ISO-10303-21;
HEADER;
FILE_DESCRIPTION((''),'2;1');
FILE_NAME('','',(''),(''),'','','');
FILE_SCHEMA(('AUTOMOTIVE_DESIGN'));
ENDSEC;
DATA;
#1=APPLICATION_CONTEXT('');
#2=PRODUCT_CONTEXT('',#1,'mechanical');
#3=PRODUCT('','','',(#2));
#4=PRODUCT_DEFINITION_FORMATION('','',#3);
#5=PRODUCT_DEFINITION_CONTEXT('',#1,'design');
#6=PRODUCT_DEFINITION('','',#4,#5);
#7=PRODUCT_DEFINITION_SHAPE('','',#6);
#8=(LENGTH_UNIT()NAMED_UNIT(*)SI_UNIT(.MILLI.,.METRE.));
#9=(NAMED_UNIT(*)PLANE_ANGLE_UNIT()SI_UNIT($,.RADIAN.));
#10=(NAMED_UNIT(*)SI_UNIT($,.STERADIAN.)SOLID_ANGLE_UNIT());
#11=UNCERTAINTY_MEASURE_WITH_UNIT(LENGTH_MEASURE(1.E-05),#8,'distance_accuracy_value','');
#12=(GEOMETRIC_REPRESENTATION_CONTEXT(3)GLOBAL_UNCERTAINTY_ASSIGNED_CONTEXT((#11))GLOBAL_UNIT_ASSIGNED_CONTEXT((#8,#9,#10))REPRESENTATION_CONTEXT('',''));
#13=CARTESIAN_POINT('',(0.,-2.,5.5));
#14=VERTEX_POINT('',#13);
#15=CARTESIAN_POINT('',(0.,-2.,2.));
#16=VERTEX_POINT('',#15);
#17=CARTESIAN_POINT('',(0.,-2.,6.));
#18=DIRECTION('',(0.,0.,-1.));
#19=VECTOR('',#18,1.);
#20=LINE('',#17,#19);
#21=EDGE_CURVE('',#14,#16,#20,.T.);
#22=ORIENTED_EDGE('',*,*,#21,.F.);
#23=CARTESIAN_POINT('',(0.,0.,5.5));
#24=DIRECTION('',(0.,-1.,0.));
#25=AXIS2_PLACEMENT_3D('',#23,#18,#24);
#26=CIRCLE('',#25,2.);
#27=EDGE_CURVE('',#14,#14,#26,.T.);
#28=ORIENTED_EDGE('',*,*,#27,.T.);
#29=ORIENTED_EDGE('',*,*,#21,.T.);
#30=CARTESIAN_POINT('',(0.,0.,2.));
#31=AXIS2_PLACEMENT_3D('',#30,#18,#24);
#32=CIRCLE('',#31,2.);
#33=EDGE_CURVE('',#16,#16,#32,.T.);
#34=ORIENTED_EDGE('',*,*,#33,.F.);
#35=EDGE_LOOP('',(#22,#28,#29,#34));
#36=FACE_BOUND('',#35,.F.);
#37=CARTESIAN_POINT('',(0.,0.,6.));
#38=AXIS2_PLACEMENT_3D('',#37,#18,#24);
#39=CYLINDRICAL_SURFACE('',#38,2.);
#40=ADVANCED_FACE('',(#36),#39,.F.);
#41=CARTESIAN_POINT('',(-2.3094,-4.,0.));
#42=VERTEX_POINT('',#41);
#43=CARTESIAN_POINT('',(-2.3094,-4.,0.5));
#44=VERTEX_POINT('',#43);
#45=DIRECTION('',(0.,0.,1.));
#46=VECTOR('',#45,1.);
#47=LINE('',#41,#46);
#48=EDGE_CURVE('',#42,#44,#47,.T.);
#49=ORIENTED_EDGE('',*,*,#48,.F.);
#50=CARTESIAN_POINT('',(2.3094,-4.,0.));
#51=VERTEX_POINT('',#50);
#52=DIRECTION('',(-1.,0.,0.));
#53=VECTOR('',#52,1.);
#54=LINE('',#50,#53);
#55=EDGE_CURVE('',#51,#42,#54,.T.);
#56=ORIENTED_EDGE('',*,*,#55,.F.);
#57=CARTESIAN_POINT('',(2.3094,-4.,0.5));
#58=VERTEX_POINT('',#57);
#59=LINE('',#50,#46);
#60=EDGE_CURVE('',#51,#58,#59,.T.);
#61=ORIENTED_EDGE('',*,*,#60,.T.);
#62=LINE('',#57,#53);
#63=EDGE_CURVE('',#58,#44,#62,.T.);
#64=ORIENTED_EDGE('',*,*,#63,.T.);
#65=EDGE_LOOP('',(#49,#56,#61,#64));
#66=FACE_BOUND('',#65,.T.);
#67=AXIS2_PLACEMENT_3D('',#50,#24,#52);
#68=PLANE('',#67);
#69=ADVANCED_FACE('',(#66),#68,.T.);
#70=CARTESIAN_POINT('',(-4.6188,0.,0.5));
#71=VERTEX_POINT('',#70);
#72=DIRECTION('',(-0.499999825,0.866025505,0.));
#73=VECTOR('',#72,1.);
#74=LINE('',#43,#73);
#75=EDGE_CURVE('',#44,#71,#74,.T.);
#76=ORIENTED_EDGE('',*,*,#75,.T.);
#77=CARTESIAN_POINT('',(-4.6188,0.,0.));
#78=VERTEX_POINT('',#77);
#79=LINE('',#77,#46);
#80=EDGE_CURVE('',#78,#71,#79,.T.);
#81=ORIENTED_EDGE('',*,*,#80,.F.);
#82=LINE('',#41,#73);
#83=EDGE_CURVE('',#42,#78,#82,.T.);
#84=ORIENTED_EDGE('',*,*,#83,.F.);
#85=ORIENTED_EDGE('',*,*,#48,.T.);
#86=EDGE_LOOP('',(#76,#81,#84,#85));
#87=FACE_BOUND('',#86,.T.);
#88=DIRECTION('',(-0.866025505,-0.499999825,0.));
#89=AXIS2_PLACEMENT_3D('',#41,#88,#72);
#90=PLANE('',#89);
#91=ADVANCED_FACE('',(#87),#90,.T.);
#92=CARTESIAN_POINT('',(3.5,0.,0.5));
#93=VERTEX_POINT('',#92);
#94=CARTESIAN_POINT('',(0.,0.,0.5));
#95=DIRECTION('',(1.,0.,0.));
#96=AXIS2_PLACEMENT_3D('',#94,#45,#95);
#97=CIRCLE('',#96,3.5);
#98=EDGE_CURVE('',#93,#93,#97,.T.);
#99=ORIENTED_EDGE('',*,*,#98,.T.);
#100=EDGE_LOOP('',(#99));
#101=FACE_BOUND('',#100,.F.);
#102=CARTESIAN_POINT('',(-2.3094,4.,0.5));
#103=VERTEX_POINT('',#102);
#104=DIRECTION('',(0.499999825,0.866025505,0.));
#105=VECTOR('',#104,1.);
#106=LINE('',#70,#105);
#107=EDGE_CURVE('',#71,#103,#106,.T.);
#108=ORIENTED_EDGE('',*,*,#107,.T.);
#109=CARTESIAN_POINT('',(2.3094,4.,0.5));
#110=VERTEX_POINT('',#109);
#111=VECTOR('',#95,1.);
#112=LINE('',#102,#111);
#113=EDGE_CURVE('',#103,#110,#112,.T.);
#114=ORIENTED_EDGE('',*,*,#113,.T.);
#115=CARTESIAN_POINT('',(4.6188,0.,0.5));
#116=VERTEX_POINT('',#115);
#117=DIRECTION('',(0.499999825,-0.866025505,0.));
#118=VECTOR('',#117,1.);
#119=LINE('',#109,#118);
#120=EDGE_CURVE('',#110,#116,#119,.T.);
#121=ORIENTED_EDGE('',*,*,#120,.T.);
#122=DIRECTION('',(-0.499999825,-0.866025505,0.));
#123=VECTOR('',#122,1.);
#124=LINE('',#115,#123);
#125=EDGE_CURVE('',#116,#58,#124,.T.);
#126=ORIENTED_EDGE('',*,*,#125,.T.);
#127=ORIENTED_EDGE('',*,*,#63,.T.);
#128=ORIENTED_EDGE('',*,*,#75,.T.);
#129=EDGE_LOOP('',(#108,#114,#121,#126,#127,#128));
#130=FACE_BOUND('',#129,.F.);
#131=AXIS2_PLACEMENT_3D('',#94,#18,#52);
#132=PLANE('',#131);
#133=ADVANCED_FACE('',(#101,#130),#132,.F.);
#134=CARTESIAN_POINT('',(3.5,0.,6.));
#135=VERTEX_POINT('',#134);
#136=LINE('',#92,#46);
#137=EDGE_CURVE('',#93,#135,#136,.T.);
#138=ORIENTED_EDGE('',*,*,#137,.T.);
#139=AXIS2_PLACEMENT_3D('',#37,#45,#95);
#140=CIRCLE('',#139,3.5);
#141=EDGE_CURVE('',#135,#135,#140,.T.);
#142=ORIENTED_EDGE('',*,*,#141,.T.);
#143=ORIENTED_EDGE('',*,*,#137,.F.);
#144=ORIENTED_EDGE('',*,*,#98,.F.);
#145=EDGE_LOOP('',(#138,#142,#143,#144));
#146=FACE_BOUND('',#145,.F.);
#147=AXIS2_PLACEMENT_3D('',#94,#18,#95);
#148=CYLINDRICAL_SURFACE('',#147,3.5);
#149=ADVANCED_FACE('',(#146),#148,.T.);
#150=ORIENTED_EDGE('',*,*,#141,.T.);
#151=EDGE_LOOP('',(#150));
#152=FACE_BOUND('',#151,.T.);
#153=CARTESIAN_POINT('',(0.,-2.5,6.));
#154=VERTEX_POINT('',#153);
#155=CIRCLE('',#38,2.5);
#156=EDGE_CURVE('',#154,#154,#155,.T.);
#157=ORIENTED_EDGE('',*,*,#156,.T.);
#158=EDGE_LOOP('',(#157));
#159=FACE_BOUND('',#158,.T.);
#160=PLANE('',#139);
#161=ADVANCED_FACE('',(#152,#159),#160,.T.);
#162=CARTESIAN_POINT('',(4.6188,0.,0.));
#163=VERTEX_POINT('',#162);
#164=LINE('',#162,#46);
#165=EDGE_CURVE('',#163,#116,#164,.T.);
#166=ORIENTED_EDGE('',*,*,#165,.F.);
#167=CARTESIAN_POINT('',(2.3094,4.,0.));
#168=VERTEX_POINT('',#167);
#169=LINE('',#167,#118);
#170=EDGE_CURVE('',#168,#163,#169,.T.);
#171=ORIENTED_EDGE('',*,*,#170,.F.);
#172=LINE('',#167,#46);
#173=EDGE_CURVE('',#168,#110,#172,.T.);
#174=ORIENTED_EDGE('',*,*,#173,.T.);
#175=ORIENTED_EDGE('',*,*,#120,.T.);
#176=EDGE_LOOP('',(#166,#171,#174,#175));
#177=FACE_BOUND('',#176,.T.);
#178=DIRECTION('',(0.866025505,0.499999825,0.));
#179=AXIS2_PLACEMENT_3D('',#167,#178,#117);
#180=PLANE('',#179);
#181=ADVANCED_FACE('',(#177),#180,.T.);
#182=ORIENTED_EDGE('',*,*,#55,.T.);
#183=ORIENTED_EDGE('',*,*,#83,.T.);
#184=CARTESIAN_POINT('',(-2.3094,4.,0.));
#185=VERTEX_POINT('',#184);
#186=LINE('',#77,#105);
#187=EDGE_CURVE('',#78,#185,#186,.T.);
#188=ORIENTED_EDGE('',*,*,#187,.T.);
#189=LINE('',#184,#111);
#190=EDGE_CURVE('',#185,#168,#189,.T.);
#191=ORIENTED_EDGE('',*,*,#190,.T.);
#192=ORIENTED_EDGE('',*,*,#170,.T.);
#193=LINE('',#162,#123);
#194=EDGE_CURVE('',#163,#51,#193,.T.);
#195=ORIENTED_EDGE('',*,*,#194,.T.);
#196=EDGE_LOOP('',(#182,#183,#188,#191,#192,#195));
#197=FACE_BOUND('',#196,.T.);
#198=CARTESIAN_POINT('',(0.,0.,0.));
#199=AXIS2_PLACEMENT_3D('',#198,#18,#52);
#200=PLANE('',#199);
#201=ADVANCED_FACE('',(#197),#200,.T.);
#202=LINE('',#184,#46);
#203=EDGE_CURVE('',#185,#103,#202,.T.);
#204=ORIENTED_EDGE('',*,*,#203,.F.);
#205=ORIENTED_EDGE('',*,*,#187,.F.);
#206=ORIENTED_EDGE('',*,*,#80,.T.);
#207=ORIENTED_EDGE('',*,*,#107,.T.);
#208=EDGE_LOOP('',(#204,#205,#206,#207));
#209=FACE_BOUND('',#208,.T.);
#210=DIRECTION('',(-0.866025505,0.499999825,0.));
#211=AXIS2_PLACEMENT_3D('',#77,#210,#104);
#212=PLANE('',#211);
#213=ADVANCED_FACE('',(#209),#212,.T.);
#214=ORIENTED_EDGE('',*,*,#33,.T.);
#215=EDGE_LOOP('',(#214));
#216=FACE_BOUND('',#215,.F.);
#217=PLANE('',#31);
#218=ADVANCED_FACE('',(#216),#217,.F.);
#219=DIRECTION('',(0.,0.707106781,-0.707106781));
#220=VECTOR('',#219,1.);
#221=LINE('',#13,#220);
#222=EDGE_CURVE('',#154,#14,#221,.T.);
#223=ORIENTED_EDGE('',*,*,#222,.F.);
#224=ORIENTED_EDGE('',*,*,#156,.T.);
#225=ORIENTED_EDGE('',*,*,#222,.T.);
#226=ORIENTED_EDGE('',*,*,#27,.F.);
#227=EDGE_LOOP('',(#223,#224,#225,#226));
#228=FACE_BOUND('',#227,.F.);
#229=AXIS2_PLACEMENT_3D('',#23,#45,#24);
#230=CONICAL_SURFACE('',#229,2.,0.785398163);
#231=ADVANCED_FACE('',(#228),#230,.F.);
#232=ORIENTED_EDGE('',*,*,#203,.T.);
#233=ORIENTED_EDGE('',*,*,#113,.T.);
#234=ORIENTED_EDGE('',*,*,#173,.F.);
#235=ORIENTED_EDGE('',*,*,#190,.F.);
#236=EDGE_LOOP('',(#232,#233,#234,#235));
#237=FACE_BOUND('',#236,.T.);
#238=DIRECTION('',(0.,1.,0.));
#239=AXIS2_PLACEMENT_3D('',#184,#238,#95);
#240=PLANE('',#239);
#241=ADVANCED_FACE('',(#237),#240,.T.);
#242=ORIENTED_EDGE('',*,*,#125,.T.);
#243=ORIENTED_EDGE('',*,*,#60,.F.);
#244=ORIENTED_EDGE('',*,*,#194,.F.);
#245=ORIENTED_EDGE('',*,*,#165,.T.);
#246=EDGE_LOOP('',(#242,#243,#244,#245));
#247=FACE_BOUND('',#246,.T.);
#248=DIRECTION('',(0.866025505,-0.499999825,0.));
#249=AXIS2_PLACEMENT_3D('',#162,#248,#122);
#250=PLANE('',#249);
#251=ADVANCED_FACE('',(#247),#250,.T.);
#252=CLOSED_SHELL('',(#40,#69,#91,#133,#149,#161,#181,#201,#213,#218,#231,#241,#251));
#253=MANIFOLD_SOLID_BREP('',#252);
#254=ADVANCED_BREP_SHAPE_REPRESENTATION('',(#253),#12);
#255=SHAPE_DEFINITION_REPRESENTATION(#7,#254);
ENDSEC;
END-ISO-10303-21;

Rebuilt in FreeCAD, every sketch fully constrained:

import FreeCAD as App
import Part
import Sketcher
Q = App.Units.Quantity


def edges_at(feature, points):
    """Names of the edges that pass closest to the given points."""
    edges = feature.Shape.Edges
    near = lambda p: min(range(len(edges)), key=lambda i: edges[i].distToShape(Part.Vertex(*p))[0])
    return sorted({f"Edge{near(p) + 1}" for p in points})

doc = App.newDocument("Part")
params = doc.addObject("Spreadsheet::Sheet", "Params")
for row, (alias, value) in enumerate([
    ("pad1_length", "0.5 mm"),
    ("sketch2_diameter", "7 mm"),
    ("pad2_length", "5.5 mm"),
    ("sketch3_diameter", "4 mm"),
    ("hole_diameter", "4 mm"),
    ("hole_depth", "4 mm"),
    ("chamfer_size", "0.5 mm"),
], start=1):
    params.set(f"A{row}", alias)
    params.set(f"B{row}", "=" + value)
    params.setAlias(f"B{row}", alias)

body = doc.addObject("PartDesign::Body", "Body")

# Sketch on XY plane
sketch1 = body.newObject("Sketcher::SketchObject", "Sketch")
sketch1.AttachmentSupport = (doc.getObject("XY_Plane"), [""])
sketch1.MapMode = "FlatFace"
sketch1.addGeometry(Part.LineSegment(App.Vector(2.3, 4, 0), App.Vector(-2.3, 4, 0)), False)
sketch1.addGeometry(Part.LineSegment(App.Vector(-2.3, 4, 0), App.Vector(-4.6, 0, 0)), False)
sketch1.addGeometry(Part.LineSegment(App.Vector(-4.6, 0, 0), App.Vector(-2.3, -4, 0)), False)
sketch1.addGeometry(Part.LineSegment(App.Vector(-2.3, -4, 0), App.Vector(2.3, -4, 0)), False)
sketch1.addGeometry(Part.LineSegment(App.Vector(2.3, -4, 0), App.Vector(4.6, 0, 0)), False)
sketch1.addGeometry(Part.LineSegment(App.Vector(4.6, 0, 0), App.Vector(2.3, 4, 0)), False)
sketch1.addConstraint(Sketcher.Constraint("Coincident", 0, 2, 1, 1))
sketch1.addConstraint(Sketcher.Constraint("Coincident", 1, 2, 2, 1))
sketch1.addConstraint(Sketcher.Constraint("Coincident", 2, 2, 3, 1))
sketch1.addConstraint(Sketcher.Constraint("Coincident", 3, 2, 4, 1))
sketch1.addConstraint(Sketcher.Constraint("Coincident", 4, 2, 5, 1))
sketch1.addConstraint(Sketcher.Constraint("Coincident", 5, 2, 0, 1))
sketch1.addConstraint(Sketcher.Constraint("Horizontal", 0))
sketch1.addConstraint(Sketcher.Constraint("Horizontal", 3))
sketch1.addConstraint(Sketcher.Constraint("Symmetric", 0, 2, 3, 2, -1, 1))
sketch1.addConstraint(Sketcher.Constraint("Symmetric", 1, 2, 4, 2, -1, 1))
sketch1.addConstraint(Sketcher.Constraint("PointOnObject", 1, 2, -1))
sketch1.addConstraint(Sketcher.Constraint("Parallel", 2, 5))
sketch1.addConstraint(Sketcher.Constraint("Vertical", 0, 2, 2, 2))
sketch1.addConstraint(Sketcher.Constraint("Angle", 1, Q("-120 deg")))
sketch1.addConstraint(Sketcher.Constraint("DistanceY", -1, 1, 0, 2, Q("4 mm")))
sketch1.addConstraint(Sketcher.Constraint("DistanceX", 0, 2, 0, 1, Q("4.6188 mm")))
pad1 = body.newObject("PartDesign::Pad", "Pad")
pad1.Profile = sketch1
pad1.setExpression("Length", "Params.pad1_length")

# Sketch on XY plane
sketch2 = body.newObject("Sketcher::SketchObject", "Sketch001")
sketch2.AttachmentSupport = (doc.getObject("XY_Plane"), [""])
sketch2.MapMode = "FlatFace"
sketch2.AttachmentOffset = App.Placement(App.Vector(0, 0, 0.5), App.Rotation())
sketch2.addGeometry(Part.Circle(App.Vector(0, 0, 0), App.Vector(0, 0, 1), 3.5), False)
sketch2.addConstraint(Sketcher.Constraint("Coincident", 0, 3, -1, 1))
sketch2.addConstraint(Sketcher.Constraint("Diameter", 0, Q("7 mm")))
sketch2.setExpression("Constraints[1]", "Params.sketch2_diameter")
pad2 = body.newObject("PartDesign::Pad", "Pad001")
pad2.Profile = sketch2
pad2.setExpression("Length", "Params.pad2_length")

# Sketch on XY plane
sketch3 = body.newObject("Sketcher::SketchObject", "Sketch002")
sketch3.AttachmentSupport = (doc.getObject("XY_Plane"), [""])
sketch3.MapMode = "FlatFace"
sketch3.AttachmentOffset = App.Placement(App.Vector(0, 0, 6), App.Rotation())
sketch3.addGeometry(Part.Circle(App.Vector(0, 0, 0), App.Vector(0, 0, 1), 2), False)
sketch3.addConstraint(Sketcher.Constraint("Coincident", 0, 3, -1, 1))
sketch3.addConstraint(Sketcher.Constraint("Diameter", 0, Q("4 mm")))
sketch3.setExpression("Constraints[1]", "Params.sketch3_diameter")
doc.recompute()
hole = body.newObject("PartDesign::Hole", "Hole")
hole.Profile = sketch3
hole.ThreadType = "None"
hole.setExpression("Diameter", "Params.hole_diameter")
hole.DepthType = "Dimension"
hole.setExpression("Depth", "Params.hole_depth")
hole.DrillPoint = "Flat"
doc.recompute()

chamfer = body.newObject("PartDesign::Chamfer", "Chamfer")
chamfer.Base = (hole, edges_at(hole, [(0, 2, 6)]))
chamfer.setExpression("Size", "Params.chamfer_size")

doc.recompute()
